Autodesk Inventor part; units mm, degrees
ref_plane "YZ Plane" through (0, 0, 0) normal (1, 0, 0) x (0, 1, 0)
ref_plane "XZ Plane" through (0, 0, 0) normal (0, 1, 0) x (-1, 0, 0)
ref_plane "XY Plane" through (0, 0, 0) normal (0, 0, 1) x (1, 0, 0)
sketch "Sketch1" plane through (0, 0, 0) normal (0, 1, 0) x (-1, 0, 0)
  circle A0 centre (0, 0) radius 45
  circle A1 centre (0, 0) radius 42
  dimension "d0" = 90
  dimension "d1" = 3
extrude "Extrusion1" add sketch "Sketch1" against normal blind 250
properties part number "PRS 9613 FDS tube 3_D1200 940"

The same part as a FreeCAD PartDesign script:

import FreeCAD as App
import Part
import Sketcher

doc = App.newDocument("Part")
params = doc.addObject("Spreadsheet::Sheet", "Params")
for row, (alias, value) in enumerate([
    ("sketch1_diameter", "90 mm"),
    ("sketch1_diameter2", "84 mm"),
    ("pad1_length", "250 mm"),
], start=1):
    params.set(f"A{row}", alias)
    params.set(f"B{row}", "=" + value)
    params.setAlias(f"B{row}", alias)

body = doc.addObject("PartDesign::Body", "Body")

# Sketch on XZ plane
sketch1 = body.newObject("Sketcher::SketchObject", "Sketch")
sketch1.AttachmentSupport = (doc.getObject("XZ_Plane"), [""])
sketch1.MapMode = "FlatFace"
sketch1.addGeometry([
    Part.Circle(App.Vector(0, 0, 0), App.Vector(0, 0, 1), 45),
    Part.Circle(App.Vector(0, 0, 0), App.Vector(0, 0, 1), 42),
], False)
sketch1.addConstraint([
    Sketcher.Constraint("Coincident", 0, 3, -1, 1),
    Sketcher.Constraint("Coincident", 1, 3, -1, 1),
    Sketcher.Constraint("Diameter", 0, 90.0),
    Sketcher.Constraint("Diameter", 1, 84.0),
])
sketch1.setExpression("Constraints[2]", "Params.sketch1_diameter")
sketch1.setExpression("Constraints[3]", "Params.sketch1_diameter2")
pad1 = body.newObject("PartDesign::Pad", "Pad")
pad1.Profile = sketch1
pad1.setExpression("Length", "Params.pad1_length")

doc.recompute()
